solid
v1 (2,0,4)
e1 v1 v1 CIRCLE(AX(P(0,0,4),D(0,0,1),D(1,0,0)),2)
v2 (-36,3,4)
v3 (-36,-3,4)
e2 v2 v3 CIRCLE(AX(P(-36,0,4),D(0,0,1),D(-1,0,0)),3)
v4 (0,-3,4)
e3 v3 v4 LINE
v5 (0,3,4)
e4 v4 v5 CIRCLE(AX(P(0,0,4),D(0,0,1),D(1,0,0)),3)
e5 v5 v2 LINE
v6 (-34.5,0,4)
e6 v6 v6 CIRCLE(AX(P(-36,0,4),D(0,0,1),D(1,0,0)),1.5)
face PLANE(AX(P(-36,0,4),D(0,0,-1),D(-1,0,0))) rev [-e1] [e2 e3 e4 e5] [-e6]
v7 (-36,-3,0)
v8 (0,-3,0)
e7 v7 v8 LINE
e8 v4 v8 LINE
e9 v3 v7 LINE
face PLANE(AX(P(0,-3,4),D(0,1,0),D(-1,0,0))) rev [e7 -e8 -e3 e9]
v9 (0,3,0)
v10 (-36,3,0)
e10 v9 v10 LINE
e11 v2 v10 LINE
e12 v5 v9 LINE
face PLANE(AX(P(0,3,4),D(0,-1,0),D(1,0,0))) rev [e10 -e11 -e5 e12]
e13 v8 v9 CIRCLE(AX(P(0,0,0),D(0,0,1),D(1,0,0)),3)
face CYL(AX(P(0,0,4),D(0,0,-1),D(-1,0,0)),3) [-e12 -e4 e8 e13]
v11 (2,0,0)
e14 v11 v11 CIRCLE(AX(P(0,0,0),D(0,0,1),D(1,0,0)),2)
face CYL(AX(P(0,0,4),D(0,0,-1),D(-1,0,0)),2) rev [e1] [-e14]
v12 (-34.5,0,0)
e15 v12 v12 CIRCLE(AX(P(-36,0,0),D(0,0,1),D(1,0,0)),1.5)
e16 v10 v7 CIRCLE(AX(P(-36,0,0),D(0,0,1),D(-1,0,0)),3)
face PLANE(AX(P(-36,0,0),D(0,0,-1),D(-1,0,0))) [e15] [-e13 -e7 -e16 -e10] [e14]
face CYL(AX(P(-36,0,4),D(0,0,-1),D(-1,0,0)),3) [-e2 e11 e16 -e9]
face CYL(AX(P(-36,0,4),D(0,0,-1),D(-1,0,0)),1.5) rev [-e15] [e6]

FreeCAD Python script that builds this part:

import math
import FreeCAD as App
import Part
import Sketcher
from FreeCAD import Vector

doc = App.newDocument("Part")
params = doc.addObject("Spreadsheet::Sheet", "Params")
for row, (alias, value) in enumerate([
    ("sketch1_diameter", "3 mm"),
    ("sketch1_diameter2", "4 mm"),
    ("sketch1_radius", "3 mm"),
    ("sketch1_width", "36 mm"),
    ("pad1_length", "4 mm"),
], start=1):
    params.set(f"A{row}", alias)
    params.set(f"B{row}", "=" + value)
    params.setAlias(f"B{row}", alias)

body = doc.addObject("PartDesign::Body", "Body")

sketch1 = body.newObject("Sketcher::SketchObject", "Sketch")
sketch1.AttachmentSupport = (doc.getObject("XY_Plane"), [""])
sketch1.MapMode = "FlatFace"
sketch1.addGeometry([
    Part.LineSegment(Vector(0, 3, 0), Vector(-36, 3, 0)),
    Part.ArcOfCircle(Part.Circle(Vector(-36, 0, 0), Vector(0, 0, 1), 3), math.radians(90), math.radians(270)),
    Part.LineSegment(Vector(-36, -3, 0), Vector(0, -3, 0)),
    Part.ArcOfCircle(Part.Circle(Vector(0, 0, 0), Vector(0, 0, 1), 3), math.radians(-90), math.radians(90)),
    Part.Circle(Vector(-36, 0, 0), Vector(0, 0, 1), 1.5),
    Part.Circle(Vector(0, 0, 0), Vector(0, 0, 1), 2),
], False)
sketch1.addConstraint([
    Sketcher.Constraint("Tangent", 0, 2, 1, 1),
    Sketcher.Constraint("Tangent", 1, 2, 2, 1),
    Sketcher.Constraint("Tangent", 2, 2, 3, 1),
    Sketcher.Constraint("Tangent", 3, 2, 0, 1),
    Sketcher.Constraint("Horizontal", 0),
    Sketcher.Constraint("Horizontal", 2),
    Sketcher.Constraint("Coincident", 3, 3, -1, 1),
    Sketcher.Constraint("Coincident", 5, 3, -1, 1),
    Sketcher.Constraint("Coincident", 4, 3, 1, 3),
    Sketcher.Constraint("Diameter", 4, 3.0),
    Sketcher.Constraint("Diameter", 5, 4.0),
    Sketcher.Constraint("Radius", 1, 3.0),
    Sketcher.Constraint("DistanceX", 0, 2, 0, 1, 36.0),
])
sketch1.setExpression("Constraints[9]", "Params.sketch1_diameter")
sketch1.setExpression("Constraints[10]", "Params.sketch1_diameter2")
sketch1.setExpression("Constraints[11]", "Params.sketch1_radius")
sketch1.setExpression("Constraints[12]", "Params.sketch1_width")
pad1 = body.newObject("PartDesign::Pad", "Pad")
pad1.Profile = sketch1
pad1.setExpression("Length", "Params.pad1_length")

doc.recompute()
